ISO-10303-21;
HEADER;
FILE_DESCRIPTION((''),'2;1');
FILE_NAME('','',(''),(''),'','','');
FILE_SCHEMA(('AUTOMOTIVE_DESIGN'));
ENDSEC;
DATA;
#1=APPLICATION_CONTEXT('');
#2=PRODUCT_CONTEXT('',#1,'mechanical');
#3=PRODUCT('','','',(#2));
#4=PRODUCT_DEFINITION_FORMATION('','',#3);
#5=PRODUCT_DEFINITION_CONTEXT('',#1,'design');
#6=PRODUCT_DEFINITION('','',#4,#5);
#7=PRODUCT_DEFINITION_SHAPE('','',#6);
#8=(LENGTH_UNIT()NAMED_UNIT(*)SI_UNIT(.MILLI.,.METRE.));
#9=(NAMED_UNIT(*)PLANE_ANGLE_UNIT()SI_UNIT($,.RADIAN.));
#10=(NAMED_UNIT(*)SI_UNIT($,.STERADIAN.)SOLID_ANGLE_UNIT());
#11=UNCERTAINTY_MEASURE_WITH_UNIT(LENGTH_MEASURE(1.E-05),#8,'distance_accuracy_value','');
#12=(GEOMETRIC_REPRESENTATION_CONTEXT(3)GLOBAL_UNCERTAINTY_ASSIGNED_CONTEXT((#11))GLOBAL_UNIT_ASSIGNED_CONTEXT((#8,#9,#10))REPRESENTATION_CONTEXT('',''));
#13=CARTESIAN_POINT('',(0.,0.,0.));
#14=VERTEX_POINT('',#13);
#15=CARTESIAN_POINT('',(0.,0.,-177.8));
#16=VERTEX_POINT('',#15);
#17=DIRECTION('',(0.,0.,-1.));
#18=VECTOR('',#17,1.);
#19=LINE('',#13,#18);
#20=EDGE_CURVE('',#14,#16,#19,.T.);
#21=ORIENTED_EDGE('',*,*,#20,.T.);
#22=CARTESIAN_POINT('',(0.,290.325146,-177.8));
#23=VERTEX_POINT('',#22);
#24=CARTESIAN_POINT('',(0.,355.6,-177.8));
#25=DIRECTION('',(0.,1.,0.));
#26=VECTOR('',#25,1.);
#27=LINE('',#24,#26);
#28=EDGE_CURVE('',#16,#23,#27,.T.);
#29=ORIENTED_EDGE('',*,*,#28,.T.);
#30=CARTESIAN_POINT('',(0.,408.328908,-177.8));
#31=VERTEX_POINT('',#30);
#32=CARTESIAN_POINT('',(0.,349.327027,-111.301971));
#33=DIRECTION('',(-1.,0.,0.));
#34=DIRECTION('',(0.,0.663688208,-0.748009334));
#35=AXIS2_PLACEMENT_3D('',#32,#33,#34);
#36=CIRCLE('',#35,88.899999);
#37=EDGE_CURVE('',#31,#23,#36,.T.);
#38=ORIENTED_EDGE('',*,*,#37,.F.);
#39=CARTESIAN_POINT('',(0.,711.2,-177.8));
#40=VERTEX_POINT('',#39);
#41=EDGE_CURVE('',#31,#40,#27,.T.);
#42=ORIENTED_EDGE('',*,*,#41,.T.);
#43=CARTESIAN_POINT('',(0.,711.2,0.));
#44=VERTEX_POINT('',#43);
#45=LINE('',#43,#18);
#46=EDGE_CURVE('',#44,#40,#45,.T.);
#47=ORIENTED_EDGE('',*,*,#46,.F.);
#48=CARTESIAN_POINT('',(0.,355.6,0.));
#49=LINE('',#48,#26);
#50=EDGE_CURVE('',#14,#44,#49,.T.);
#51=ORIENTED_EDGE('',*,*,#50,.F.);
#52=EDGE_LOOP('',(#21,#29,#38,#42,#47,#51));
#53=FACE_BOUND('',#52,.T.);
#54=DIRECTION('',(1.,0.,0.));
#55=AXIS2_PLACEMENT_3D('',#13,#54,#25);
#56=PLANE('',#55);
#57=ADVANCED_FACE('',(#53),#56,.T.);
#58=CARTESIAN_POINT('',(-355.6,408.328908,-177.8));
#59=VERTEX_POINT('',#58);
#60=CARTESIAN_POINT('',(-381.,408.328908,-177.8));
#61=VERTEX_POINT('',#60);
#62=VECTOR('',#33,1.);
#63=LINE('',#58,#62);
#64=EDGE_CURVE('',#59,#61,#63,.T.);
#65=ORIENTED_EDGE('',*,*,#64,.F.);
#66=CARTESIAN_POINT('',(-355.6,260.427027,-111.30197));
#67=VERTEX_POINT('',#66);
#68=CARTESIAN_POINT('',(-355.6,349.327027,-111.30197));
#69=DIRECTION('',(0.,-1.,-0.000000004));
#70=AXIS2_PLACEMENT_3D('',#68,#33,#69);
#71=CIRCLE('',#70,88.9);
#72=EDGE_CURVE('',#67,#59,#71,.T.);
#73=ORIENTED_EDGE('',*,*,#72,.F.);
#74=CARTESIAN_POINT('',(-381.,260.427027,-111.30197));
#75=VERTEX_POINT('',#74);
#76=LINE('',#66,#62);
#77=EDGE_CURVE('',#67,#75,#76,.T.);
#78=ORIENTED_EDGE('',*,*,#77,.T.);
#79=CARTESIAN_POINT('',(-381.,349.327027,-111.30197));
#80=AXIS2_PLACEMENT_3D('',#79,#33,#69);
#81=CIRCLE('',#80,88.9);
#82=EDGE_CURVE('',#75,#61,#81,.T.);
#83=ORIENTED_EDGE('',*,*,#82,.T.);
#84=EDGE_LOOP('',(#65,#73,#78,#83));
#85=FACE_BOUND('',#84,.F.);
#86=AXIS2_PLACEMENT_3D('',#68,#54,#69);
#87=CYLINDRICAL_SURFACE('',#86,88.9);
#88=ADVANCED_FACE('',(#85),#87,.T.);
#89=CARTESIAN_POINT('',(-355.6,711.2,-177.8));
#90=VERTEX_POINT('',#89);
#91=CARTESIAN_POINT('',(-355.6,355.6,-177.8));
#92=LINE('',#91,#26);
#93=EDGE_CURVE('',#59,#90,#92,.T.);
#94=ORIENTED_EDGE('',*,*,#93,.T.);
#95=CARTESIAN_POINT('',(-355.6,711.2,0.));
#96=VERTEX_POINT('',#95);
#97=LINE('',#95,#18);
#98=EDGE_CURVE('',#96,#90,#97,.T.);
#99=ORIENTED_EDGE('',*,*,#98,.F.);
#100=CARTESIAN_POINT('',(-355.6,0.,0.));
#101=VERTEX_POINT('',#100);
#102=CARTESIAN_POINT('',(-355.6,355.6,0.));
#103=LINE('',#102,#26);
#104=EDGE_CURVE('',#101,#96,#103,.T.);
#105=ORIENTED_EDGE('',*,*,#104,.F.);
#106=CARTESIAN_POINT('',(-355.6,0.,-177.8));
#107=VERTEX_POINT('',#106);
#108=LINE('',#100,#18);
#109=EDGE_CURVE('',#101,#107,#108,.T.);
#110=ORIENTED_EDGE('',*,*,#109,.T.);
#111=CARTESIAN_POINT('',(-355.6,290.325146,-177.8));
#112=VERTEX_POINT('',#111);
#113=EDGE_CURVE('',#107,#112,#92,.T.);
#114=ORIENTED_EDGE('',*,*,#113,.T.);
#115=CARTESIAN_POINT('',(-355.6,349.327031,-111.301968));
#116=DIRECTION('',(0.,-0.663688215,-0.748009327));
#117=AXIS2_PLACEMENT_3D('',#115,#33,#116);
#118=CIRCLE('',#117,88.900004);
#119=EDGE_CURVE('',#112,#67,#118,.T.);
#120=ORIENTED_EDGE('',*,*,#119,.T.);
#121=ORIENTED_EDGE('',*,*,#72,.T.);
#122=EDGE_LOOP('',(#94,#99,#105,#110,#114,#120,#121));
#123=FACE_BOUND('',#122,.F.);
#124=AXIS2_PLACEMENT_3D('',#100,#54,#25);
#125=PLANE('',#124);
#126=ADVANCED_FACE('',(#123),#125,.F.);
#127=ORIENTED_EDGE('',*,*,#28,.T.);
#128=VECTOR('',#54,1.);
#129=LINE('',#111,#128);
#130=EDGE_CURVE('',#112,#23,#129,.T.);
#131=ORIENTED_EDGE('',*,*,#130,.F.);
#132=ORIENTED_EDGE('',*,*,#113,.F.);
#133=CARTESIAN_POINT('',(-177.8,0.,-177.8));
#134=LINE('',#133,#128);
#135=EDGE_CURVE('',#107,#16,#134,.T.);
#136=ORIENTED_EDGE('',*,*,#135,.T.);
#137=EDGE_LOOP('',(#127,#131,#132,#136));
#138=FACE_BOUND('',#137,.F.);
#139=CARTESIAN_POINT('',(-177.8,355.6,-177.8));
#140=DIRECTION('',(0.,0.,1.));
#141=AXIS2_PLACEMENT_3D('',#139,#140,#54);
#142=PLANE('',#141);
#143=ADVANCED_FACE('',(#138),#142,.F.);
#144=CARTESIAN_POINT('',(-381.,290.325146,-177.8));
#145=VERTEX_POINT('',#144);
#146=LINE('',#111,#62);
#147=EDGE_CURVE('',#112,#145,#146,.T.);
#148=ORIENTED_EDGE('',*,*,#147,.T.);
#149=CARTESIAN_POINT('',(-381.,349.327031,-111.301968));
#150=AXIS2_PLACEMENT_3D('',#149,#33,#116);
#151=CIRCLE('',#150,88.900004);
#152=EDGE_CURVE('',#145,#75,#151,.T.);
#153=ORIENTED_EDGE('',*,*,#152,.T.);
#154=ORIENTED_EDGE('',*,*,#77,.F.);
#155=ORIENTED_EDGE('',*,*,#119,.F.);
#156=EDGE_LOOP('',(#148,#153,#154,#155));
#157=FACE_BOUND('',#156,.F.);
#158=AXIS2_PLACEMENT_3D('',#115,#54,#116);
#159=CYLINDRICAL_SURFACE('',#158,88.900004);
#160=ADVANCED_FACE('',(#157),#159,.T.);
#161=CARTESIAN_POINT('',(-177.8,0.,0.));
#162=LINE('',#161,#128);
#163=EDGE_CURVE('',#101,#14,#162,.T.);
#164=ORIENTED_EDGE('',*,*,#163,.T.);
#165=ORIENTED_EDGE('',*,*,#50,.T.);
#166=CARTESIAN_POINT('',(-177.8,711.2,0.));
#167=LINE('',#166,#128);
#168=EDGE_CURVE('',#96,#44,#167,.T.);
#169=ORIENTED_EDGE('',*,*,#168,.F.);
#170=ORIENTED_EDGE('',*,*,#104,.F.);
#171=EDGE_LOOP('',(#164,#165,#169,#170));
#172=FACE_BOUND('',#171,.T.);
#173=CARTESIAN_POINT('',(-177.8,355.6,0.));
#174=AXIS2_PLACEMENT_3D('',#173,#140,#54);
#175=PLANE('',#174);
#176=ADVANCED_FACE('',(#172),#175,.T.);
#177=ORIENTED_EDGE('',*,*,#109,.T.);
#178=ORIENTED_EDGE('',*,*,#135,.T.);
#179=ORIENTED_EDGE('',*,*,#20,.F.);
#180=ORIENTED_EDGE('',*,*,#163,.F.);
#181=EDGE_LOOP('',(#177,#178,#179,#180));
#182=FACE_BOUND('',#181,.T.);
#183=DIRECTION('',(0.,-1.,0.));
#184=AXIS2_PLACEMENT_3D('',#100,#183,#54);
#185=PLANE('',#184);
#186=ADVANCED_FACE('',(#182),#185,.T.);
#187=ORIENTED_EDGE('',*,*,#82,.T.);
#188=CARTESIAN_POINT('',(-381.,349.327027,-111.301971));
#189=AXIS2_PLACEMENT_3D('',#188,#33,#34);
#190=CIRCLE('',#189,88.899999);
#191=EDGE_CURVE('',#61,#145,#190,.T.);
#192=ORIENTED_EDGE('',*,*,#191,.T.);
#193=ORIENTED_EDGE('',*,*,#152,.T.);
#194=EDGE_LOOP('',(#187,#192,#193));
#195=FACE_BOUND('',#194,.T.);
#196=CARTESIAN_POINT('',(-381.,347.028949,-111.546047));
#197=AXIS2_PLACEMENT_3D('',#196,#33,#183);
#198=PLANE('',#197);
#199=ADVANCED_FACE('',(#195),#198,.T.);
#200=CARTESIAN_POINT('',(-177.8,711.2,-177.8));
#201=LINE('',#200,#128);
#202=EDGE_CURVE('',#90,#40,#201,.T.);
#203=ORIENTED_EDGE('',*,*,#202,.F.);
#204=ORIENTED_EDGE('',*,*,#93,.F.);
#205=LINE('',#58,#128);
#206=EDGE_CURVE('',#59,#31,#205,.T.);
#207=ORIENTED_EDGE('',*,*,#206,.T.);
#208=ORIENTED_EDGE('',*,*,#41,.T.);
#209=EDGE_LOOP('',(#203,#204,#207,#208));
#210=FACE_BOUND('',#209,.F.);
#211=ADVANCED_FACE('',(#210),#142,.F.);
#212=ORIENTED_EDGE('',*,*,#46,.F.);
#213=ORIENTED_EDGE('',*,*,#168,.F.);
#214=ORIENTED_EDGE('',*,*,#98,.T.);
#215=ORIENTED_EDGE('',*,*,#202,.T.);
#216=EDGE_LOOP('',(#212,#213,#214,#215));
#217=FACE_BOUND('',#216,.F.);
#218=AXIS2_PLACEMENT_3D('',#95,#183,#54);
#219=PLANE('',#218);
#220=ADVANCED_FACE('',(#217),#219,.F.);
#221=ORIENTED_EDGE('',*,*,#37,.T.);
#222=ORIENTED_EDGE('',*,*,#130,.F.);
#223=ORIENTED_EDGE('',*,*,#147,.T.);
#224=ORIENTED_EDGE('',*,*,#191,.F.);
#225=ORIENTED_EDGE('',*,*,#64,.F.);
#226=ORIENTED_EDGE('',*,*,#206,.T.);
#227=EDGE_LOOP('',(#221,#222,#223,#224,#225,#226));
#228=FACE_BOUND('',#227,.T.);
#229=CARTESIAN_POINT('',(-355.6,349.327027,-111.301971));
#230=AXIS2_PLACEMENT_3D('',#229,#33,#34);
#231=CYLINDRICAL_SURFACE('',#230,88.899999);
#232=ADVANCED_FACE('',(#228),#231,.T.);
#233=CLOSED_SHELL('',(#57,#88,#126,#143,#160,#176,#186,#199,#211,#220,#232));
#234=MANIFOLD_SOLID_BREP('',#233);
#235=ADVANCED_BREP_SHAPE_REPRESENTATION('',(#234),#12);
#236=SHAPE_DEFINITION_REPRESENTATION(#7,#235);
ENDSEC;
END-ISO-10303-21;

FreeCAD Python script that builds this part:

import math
import FreeCAD as App
import Part
import Sketcher
Q = App.Units.Quantity

doc = App.newDocument("Part")
params = doc.addObject("Spreadsheet::Sheet", "Params")
for row, (alias, value) in enumerate([
    ("sketch1_width", "14 in"),
    ("sketch1_height", "28 in"),
    ("pad1_length", "7 in"),
    ("sketch2_radius", "3.5000002 in"),
    ("pad2_length", "1 in"),
    ("pad2_length2", "14 in"),
], start=1):
    params.set(f"A{row}", alias)
    params.set(f"B{row}", "=" + value)
    params.setAlias(f"B{row}", alias)

body = doc.addObject("PartDesign::Body", "Body")

sketch1 = doc.addObject("Sketcher::SketchObject", "Sketch")
body.addObject(sketch1)
sketch1.AttachmentSupport = (doc.XY_Plane, [""])
sketch1.MapMode = "FlatFace"
sketch1.addGeometry([
    Part.LineSegment(App.Vector(-356, 711, 0), App.Vector(-356, 0, 0)),
    Part.LineSegment(App.Vector(-356, 0, 0), App.Vector(0, 0, 0)),
    Part.LineSegment(App.Vector(0, 0, 0), App.Vector(0, 711, 0)),
    Part.LineSegment(App.Vector(0, 711, 0), App.Vector(-356, 711, 0)),
], False)
sketch1.addConstraint([
    Sketcher.Constraint("Coincident", 0, 2, 1, 1),
    Sketcher.Constraint("Coincident", 1, 2, 2, 1),
    Sketcher.Constraint("Coincident", 2, 2, 3, 1),
    Sketcher.Constraint("Coincident", 3, 2, 0, 1),
    Sketcher.Constraint("Vertical", 0),
    Sketcher.Constraint("Horizontal", 1),
    Sketcher.Constraint("Vertical", 2),
    Sketcher.Constraint("Horizontal", 3),
    Sketcher.Constraint("Coincident", 1, 2, -1, 1),
    Sketcher.Constraint("DistanceX", 1, 1, 1, 2, Q("14 in")),
    Sketcher.Constraint("DistanceY", 0, 2, 0, 1, Q("28 in")),
])
sketch1.setExpression("Constraints[9]", "Params.sketch1_width")
sketch1.setExpression("Constraints[10]", "Params.sketch1_height")
pad1 = doc.addObject("PartDesign::Pad", "Pad")
body.addObject(pad1)
pad1.Profile = sketch1
pad1.setExpression("Length", "Params.pad1_length")
pad1.Reversed = True

sketch2 = doc.addObject("Sketcher::SketchObject", "Sketch001")
body.addObject(sketch2)
sketch2.AttachmentSupport = (doc.YZ_Plane, [""])
sketch2.MapMode = "FlatFace"
sketch2.AttachmentOffset = App.Placement(App.Vector(0, 0, -14 * 25.4), App.Rotation())
sketch2.addGeometry([
    Part.ArcOfCircle(Part.Circle(App.Vector(349, -111, 0), App.Vector(0, 0, 1), 89), math.radians(-180), math.radians(-132)),
    Part.ArcOfCircle(Part.Circle(App.Vector(349, -111, 0), App.Vector(0, 0, 1), 89), math.radians(-48), math.radians(180)),
    Part.ArcOfCircle(Part.Circle(App.Vector(349, -111, 0), App.Vector(0, 0, 1), 89), math.radians(-132), math.radians(-48)),
], False)
sketch2.addConstraint([
    Sketcher.Constraint("Tangent", 0, 1, 1, 2),
    Sketcher.Constraint("Tangent", 1, 1, 2, 2),
    Sketcher.Constraint("Tangent", 2, 1, 0, 2),
    Sketcher.Constraint("Horizontal", 2, 3, 0, 1),
    Sketcher.Constraint("Horizontal", 1, 1, 2, 1),
    Sketcher.Constraint("Radius", 0, Q("3.5000002 in")),
    Sketcher.Constraint("DistanceY", 1, 1, -1, 1, Q("7 in")),
    Sketcher.Constraint("DistanceX", -1, 1, 0, 3, Q("349.327031 mm")),
    Sketcher.Constraint("DistanceY", 1, 3, -1, 1, Q("111.30197 mm")),
])
sketch2.setExpression("Constraints[5]", "Params.sketch2_radius")
pad2 = doc.addObject("PartDesign::Pad", "Pad001")
body.addObject(pad2)
pad2.Profile = sketch2
pad2.Type = "TwoLengths"
pad2.setExpression("Length", "Params.pad2_length")
pad2.setExpression("Length2", "Params.pad2_length2")
pad2.Reversed = True

doc.recompute()
